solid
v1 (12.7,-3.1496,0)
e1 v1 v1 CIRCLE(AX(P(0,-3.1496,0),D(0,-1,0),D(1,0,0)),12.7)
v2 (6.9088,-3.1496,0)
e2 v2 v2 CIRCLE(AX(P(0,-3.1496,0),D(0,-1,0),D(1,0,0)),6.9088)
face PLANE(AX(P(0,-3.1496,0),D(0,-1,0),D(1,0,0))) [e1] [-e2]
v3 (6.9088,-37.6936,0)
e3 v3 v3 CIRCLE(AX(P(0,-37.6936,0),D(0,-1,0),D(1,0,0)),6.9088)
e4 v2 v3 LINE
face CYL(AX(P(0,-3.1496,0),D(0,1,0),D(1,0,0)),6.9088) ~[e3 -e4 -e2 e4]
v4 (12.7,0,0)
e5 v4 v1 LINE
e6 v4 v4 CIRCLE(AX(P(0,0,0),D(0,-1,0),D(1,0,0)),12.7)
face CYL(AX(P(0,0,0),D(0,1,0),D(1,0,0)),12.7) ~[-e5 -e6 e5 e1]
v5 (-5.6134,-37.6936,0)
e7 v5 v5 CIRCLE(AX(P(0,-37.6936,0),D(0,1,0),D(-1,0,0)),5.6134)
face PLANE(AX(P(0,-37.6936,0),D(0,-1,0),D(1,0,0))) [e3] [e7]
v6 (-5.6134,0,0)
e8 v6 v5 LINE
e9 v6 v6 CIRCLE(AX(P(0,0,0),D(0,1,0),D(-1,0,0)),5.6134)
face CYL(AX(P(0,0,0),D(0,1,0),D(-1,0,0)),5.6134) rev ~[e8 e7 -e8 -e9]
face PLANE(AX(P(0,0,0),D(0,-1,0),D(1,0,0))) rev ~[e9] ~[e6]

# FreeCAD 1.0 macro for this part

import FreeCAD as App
import Part
import Sketcher
Q = App.Units.Quantity

doc = App.newDocument("Part")
body = doc.addObject("PartDesign::Body", "Body")

sketch1 = body.newObject("Sketcher::SketchObject", "Sketch")
sketch1.AttachmentSupport = (doc.getObject("XZ_Plane"), [""])
sketch1.MapMode = "FlatFace"
sketch1.addGeometry(Part.Circle(App.Vector(0, 0, 0), App.Vector(0, 0, 1), 13), False)
sketch1.addConstraint(Sketcher.Constraint("Coincident", 0, 3, -1, 1))
sketch1.addConstraint(Sketcher.Constraint("Diameter", 0, Q("1 in")))
pad1 = body.newObject("PartDesign::Pad", "Pad")
pad1.Profile = sketch1
pad1.Length = Q("0.124 in")

sketch2 = body.newObject("Sketcher::SketchObject", "Sketch001")
sketch2.AttachmentSupport = (doc.getObject("XZ_Plane"), [""])
sketch2.MapMode = "FlatFace"
sketch2.AttachmentOffset = App.Placement(App.Vector(0, 0, 0.124 * 25.4), App.Rotation())
sketch2.addGeometry(Part.Circle(App.Vector(0, 0, 0), App.Vector(0, 0, 1), 7), False)
sketch2.addConstraint(Sketcher.Constraint("Coincident", 0, 3, -1, 1))
sketch2.addConstraint(Sketcher.Constraint("Diameter", 0, Q("0.544 in")))
pad2 = body.newObject("PartDesign::Pad", "Pad001")
pad2.Profile = sketch2
pad2.Length = Q("1.36 in")

sketch3 = body.newObject("Sketcher::SketchObject", "Sketch002")
sketch3.AttachmentSupport = (doc.getObject("XZ_Plane"), [""])
sketch3.MapMode = "FlatFace"
sketch3.addGeometry(Part.Circle(App.Vector(0, 0, 0), App.Vector(0, 0, 1), 6), False)
sketch3.addConstraint(Sketcher.Constraint("Coincident", 0, 3, -1, 1))
sketch3.addConstraint(Sketcher.Constraint("Diameter", 0, Q("0.442 in")))
pocket1 = body.newObject("PartDesign::Pocket", "Pocket")
pocket1.Profile = sketch3
pocket1.Type = "ThroughAll"
pocket1.Reversed = True

doc.recompute()
